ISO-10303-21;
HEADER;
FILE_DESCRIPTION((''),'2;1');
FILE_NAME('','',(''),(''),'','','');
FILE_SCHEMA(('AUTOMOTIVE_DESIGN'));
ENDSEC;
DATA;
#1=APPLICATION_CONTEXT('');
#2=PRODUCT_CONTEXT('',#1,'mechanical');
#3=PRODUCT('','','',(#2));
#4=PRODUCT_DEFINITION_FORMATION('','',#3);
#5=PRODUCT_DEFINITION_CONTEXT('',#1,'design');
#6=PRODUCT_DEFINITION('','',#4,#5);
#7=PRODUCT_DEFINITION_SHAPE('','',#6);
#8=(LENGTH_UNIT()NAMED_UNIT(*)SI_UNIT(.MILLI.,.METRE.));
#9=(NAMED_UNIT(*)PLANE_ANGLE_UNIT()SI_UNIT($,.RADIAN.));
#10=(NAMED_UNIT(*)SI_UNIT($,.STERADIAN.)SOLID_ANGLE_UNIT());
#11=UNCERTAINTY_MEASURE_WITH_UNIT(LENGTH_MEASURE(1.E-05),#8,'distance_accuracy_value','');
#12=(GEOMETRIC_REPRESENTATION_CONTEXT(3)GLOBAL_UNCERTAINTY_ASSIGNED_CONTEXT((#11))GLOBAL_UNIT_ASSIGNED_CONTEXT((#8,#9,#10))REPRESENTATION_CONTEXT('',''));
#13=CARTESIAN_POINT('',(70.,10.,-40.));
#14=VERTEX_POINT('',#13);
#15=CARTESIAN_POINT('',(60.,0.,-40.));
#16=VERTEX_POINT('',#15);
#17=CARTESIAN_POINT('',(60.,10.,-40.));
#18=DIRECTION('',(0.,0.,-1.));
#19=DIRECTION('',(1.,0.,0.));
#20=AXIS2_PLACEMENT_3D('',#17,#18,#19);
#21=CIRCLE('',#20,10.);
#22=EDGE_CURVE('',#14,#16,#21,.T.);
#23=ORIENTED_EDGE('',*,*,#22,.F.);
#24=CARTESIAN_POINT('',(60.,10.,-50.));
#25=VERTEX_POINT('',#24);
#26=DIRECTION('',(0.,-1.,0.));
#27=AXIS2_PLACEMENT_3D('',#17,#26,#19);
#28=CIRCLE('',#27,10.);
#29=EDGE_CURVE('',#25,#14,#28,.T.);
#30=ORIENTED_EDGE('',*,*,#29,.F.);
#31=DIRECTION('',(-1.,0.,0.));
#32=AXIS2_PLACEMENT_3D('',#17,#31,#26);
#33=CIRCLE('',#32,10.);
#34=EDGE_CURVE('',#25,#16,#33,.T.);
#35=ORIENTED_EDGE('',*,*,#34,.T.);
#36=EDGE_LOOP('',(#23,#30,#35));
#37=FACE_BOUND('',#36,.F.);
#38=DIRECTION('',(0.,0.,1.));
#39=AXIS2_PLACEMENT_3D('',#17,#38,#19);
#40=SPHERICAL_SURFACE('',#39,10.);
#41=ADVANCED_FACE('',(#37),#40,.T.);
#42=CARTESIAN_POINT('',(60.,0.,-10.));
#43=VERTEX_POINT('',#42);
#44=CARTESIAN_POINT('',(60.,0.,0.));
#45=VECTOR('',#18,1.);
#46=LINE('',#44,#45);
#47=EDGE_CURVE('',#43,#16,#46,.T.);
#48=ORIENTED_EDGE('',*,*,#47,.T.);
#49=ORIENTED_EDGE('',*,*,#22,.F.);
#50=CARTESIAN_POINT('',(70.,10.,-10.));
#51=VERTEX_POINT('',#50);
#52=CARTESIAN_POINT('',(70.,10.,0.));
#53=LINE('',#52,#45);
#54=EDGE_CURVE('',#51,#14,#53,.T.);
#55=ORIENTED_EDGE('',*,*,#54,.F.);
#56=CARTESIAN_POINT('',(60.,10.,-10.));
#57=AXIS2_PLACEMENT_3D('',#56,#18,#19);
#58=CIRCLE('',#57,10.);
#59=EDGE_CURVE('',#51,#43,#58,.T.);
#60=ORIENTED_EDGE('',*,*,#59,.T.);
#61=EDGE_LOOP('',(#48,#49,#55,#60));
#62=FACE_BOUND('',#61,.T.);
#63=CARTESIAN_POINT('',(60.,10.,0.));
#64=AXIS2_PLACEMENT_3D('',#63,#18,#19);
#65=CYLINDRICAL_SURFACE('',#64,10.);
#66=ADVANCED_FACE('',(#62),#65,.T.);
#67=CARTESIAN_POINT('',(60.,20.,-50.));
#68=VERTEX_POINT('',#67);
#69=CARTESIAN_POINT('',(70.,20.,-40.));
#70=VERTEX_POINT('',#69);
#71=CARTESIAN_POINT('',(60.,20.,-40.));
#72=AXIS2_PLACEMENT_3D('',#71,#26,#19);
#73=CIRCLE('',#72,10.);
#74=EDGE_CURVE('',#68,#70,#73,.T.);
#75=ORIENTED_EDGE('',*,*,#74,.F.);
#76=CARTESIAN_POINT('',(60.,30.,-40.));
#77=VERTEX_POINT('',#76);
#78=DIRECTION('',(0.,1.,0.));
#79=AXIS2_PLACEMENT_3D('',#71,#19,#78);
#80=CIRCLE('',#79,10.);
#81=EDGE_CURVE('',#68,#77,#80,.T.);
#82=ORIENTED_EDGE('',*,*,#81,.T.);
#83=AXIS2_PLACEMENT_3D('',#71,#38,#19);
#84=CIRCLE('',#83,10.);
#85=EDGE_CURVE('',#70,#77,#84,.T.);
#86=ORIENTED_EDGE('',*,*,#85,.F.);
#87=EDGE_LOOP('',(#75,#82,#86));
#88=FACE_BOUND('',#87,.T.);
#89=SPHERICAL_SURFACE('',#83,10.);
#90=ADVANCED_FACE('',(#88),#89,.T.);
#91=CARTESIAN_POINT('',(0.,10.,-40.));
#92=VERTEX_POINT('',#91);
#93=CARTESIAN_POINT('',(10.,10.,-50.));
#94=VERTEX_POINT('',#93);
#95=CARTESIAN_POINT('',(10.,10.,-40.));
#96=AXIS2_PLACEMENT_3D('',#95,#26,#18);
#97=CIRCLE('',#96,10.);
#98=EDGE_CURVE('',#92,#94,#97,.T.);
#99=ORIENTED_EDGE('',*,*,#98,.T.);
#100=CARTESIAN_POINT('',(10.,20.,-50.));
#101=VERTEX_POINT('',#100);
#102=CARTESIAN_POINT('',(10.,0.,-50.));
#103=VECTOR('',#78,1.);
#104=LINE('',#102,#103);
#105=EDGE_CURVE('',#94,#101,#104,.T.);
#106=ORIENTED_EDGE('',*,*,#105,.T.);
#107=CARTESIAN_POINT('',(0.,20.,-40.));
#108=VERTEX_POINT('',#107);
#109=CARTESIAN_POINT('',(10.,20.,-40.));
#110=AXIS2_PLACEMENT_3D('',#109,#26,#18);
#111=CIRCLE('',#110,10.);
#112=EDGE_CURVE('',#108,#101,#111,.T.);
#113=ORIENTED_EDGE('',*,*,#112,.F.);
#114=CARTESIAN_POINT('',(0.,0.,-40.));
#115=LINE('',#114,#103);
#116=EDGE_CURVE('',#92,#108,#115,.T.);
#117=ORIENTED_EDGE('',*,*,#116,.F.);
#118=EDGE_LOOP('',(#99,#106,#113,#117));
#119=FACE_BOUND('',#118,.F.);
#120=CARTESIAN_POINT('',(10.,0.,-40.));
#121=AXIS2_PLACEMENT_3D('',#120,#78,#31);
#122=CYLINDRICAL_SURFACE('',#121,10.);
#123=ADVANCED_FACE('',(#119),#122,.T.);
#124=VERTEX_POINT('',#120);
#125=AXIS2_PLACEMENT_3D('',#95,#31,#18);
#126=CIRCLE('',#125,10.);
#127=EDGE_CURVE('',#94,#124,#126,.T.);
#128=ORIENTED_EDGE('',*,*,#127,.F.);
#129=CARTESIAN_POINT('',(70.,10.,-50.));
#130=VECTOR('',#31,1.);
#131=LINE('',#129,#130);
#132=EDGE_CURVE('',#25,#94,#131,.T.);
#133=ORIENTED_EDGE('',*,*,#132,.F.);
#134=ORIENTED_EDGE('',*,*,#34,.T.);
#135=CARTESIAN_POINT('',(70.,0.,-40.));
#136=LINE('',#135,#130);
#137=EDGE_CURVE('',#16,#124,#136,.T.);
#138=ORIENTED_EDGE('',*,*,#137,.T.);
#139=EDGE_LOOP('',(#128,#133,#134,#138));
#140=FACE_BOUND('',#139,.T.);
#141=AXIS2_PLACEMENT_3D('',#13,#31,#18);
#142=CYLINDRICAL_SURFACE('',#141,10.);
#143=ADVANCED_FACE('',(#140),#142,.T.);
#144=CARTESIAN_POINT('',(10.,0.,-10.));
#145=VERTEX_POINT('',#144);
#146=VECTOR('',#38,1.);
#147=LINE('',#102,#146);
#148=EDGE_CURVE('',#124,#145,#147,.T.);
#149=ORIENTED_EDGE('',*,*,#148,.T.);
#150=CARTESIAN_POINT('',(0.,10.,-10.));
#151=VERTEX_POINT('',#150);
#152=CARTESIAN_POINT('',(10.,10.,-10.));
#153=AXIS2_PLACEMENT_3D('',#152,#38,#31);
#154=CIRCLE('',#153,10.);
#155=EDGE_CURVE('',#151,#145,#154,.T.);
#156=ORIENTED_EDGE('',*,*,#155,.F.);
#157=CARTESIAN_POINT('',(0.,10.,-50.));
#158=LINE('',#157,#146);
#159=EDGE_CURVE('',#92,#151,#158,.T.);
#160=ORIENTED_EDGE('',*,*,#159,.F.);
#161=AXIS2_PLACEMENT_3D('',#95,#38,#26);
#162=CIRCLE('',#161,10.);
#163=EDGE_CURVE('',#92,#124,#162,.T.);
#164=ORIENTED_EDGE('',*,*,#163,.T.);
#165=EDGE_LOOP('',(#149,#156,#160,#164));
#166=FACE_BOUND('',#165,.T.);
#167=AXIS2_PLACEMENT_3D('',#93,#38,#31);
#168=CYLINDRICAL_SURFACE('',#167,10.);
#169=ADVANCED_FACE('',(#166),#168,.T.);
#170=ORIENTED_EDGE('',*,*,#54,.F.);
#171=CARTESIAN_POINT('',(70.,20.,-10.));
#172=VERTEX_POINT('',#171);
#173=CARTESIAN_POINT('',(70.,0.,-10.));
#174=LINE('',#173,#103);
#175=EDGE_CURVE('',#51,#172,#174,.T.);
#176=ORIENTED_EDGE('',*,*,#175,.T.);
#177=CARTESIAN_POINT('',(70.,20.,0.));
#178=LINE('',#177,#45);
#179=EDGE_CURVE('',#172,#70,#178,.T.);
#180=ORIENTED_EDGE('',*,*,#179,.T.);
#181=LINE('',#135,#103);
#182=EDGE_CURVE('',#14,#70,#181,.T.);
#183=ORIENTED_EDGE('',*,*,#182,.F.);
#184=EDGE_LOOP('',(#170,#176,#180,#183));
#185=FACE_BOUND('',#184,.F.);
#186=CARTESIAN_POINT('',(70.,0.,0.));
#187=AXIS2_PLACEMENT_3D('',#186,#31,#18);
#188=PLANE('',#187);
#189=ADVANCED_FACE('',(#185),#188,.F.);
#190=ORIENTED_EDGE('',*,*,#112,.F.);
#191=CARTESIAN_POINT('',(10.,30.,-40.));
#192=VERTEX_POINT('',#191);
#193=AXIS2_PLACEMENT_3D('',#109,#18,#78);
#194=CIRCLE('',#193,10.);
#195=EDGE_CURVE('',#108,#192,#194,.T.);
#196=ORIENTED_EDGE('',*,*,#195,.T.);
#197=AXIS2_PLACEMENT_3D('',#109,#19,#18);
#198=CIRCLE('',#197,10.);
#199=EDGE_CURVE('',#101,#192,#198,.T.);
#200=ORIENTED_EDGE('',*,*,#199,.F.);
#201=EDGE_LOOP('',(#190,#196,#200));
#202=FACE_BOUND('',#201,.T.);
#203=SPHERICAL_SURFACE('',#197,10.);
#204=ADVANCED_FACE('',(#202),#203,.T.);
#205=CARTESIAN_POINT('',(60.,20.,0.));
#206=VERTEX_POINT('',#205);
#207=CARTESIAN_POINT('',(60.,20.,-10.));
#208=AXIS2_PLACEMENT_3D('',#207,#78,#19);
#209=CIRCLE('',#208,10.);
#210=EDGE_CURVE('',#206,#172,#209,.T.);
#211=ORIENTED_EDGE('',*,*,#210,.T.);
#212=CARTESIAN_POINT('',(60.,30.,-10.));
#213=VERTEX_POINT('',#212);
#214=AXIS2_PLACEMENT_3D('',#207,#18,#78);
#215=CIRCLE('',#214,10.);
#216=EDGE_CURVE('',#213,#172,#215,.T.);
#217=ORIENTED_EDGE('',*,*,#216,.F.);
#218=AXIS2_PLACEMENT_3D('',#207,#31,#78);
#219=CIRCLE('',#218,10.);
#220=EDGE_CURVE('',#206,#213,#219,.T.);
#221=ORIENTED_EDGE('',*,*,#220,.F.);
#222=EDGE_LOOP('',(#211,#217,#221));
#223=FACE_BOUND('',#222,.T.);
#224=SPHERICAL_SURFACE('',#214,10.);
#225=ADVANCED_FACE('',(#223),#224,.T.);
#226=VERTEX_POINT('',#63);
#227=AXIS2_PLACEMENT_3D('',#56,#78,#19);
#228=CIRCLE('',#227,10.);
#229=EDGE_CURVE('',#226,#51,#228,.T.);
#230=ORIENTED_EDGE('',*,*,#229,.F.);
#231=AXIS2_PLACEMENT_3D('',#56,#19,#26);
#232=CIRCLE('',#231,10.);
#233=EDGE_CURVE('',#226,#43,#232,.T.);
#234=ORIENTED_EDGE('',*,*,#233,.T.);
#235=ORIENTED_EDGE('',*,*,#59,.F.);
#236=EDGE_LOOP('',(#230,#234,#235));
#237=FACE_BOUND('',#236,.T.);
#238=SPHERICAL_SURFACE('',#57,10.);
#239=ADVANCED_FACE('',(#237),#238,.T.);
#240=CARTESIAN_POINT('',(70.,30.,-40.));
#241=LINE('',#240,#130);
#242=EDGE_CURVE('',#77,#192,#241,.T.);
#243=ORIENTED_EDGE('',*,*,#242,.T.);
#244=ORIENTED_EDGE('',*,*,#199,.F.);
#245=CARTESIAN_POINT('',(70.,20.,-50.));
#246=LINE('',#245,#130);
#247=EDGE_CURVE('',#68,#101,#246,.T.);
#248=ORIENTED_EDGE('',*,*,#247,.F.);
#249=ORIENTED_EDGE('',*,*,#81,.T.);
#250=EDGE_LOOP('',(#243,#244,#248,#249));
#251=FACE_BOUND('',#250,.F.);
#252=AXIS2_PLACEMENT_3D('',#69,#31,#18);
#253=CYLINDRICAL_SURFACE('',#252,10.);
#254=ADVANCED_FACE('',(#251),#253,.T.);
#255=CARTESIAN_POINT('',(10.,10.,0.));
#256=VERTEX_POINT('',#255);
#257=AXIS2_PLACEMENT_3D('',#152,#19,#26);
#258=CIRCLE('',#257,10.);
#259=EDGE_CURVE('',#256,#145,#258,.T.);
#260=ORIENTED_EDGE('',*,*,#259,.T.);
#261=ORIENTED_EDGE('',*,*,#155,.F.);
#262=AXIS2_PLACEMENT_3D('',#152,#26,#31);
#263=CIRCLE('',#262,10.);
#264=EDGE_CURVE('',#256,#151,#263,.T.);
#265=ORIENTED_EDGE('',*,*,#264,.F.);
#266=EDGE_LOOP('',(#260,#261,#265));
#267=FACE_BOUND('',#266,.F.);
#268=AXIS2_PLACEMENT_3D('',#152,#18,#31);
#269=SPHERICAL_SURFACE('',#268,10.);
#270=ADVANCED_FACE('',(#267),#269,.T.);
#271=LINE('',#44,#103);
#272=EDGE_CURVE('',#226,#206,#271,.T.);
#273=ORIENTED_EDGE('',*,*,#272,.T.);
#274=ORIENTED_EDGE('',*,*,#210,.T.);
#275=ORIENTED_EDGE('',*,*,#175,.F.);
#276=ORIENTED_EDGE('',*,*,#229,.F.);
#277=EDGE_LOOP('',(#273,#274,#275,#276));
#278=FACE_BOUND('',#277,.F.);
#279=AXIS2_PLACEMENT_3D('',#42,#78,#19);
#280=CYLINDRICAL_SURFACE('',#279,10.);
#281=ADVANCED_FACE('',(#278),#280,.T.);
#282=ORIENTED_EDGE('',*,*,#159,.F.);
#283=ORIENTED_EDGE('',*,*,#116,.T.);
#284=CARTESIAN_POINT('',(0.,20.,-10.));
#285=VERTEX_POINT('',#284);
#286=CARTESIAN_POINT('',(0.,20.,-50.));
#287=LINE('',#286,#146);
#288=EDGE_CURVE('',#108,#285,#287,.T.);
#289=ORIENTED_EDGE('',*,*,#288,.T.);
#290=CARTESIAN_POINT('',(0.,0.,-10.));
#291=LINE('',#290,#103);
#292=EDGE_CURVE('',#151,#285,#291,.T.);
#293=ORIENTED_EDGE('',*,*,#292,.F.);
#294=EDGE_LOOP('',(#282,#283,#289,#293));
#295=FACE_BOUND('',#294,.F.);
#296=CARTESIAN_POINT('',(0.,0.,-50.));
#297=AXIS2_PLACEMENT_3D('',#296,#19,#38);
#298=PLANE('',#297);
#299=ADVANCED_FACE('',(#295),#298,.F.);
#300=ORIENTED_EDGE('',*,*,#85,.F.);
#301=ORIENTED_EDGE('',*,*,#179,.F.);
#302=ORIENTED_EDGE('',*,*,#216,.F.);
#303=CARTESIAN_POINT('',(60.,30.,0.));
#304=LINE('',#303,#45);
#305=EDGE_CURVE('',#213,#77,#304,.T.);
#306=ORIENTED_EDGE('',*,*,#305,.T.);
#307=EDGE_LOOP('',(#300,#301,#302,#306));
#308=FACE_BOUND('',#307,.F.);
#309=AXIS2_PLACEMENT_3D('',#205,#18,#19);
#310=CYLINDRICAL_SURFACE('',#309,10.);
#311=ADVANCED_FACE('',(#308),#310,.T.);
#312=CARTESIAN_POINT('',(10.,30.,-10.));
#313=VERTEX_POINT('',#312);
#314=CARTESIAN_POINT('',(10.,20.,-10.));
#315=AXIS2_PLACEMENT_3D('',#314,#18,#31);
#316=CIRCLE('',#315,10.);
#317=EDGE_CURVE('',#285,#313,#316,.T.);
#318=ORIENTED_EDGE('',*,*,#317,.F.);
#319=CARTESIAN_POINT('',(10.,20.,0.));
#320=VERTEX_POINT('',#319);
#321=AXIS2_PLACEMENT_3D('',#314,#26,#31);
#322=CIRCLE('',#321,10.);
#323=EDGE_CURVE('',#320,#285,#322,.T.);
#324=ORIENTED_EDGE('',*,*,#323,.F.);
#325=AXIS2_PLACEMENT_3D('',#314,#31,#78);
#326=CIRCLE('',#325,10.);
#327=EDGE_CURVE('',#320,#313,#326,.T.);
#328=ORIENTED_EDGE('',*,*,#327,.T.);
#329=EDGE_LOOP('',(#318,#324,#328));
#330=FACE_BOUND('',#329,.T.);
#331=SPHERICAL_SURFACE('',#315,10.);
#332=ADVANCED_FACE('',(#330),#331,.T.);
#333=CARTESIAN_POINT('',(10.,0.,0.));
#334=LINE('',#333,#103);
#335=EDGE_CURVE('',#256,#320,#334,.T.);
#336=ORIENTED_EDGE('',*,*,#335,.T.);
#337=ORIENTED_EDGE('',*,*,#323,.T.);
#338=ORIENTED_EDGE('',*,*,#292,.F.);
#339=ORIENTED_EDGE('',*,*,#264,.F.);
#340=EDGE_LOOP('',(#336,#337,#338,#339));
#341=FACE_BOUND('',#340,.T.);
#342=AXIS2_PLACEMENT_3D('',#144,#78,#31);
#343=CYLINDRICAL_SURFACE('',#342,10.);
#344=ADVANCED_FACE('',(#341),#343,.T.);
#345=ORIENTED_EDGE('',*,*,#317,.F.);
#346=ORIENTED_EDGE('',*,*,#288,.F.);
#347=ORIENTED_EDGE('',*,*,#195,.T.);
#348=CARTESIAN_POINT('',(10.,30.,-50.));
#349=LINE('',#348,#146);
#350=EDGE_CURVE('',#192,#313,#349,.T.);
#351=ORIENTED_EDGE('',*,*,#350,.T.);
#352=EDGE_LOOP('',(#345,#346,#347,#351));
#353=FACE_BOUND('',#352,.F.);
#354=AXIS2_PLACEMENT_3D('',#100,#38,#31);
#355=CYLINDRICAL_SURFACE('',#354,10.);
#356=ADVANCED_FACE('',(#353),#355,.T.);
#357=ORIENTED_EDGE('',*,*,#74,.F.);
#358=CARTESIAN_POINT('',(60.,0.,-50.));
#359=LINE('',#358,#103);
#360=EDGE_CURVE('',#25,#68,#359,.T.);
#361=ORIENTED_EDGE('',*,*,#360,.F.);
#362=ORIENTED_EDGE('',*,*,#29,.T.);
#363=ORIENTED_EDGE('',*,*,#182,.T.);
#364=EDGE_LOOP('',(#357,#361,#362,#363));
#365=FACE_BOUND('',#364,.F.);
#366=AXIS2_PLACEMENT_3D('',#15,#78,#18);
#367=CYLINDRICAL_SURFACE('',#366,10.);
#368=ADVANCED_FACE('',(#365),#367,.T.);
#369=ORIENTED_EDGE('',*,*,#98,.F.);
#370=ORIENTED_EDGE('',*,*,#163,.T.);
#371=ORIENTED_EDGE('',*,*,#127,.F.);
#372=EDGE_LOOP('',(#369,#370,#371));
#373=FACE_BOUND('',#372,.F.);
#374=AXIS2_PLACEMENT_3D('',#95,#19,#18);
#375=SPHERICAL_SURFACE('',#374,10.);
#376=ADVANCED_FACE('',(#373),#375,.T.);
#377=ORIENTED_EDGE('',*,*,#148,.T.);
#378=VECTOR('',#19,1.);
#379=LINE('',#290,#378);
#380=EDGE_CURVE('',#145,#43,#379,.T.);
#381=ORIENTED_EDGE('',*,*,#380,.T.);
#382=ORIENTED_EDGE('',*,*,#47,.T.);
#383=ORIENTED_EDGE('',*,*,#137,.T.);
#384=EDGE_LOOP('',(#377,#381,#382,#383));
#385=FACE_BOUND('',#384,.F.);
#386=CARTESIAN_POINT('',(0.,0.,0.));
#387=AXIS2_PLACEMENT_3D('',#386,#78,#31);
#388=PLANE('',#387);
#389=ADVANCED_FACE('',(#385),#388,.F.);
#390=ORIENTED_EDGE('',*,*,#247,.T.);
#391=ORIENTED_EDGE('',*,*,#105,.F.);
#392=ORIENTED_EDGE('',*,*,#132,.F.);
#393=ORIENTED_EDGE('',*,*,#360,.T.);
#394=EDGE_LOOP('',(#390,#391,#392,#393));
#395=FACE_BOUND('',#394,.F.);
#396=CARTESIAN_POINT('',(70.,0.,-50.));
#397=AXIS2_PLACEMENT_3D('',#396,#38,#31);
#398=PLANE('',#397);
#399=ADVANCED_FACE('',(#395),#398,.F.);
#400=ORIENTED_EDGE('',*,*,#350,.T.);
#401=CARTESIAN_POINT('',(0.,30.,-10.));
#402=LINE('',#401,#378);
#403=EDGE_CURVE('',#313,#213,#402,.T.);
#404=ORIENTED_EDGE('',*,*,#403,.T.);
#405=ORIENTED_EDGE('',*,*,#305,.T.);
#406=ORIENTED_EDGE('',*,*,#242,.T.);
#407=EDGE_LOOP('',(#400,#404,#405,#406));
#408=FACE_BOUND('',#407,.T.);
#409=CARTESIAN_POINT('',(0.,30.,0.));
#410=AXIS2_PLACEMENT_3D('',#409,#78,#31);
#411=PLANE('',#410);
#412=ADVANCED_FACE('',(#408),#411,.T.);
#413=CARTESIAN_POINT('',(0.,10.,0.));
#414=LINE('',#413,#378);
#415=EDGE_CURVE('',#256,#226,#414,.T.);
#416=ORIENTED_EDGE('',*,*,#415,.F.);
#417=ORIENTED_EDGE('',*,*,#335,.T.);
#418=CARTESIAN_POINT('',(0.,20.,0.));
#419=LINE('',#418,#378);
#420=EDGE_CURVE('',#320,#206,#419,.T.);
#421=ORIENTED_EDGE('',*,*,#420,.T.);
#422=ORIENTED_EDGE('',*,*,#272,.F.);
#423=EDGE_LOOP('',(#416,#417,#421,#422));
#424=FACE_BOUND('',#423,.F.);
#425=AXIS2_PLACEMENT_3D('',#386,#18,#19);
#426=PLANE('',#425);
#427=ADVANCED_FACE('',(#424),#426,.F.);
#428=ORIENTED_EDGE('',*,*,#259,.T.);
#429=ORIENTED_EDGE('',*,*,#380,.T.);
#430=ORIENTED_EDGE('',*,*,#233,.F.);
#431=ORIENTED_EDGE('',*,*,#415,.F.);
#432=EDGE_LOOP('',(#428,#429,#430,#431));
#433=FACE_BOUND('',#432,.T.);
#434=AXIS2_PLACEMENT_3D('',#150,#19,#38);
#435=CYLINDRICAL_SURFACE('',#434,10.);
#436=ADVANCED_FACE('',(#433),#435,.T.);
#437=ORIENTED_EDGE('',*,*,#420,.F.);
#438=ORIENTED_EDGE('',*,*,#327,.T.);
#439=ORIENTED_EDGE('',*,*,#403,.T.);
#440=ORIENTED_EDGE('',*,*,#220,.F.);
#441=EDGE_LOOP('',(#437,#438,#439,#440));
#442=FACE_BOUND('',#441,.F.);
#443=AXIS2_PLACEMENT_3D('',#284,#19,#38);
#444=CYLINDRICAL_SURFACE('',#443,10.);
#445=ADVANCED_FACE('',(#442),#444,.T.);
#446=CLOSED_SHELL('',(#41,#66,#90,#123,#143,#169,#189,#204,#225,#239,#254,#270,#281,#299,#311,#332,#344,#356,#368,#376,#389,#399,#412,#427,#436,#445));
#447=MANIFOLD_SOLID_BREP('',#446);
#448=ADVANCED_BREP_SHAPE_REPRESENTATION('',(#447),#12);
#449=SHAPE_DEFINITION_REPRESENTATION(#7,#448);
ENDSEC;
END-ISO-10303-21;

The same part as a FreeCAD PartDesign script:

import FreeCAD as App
import Part
import Sketcher
from FreeCAD import Vector


def add_polygon(sketch, points):
    """Adds a closed chain of lines whose ends are joined by coincident constraints."""
    first, n = sketch.GeometryCount, len(points)
    for a, b in zip(points, points[1:] + points[:1]):
        sketch.addGeometry(Part.LineSegment(App.Vector(*a, 0), App.Vector(*b, 0)), False)
    for i in range(n):
        sketch.addConstraint(Sketcher.Constraint("Coincident", first + i, 2, first + (i + 1) % n, 1))

doc = App.newDocument("Part")
body = doc.addObject("PartDesign::Body", "Body")

# Sketch on XZ plane
sketch1 = body.newObject("Sketcher::SketchObject", "Sketch")
sketch1.AttachmentSupport = (doc.getObject("XZ_Plane"), [""])
sketch1.MapMode = "FlatFace"
add_polygon(sketch1, [(0, -50), (0, 0), (70, 0), (70, -50)])  # lines 0-3
sketch1.addConstraint(Sketcher.Constraint("Vertical", 0))
sketch1.addConstraint(Sketcher.Constraint("Horizontal", 1))
sketch1.addConstraint(Sketcher.Constraint("Vertical", 2))
sketch1.addConstraint(Sketcher.Constraint("Horizontal", 3))
sketch1.addConstraint(Sketcher.Constraint("Coincident", 0, 2, -1, 1))
sketch1.addConstraint(Sketcher.Constraint("DistanceX", 1, 1, 1, 2, 70.0))
sketch1.addConstraint(Sketcher.Constraint("DistanceY", 0, 1, 0, 2, 50.0))
pad1 = body.newObject("PartDesign::Pad", "Pad")
pad1.Profile = sketch1
pad1.Length = 30
pad1.Reversed = True
doc.recompute()

fillet = body.newObject("PartDesign::Fillet", "Fillet")
fillet.Base = (pad1, ["Edge1"])
fillet.UseAllEdges = True
fillet.Radius = 10

doc.recompute()
